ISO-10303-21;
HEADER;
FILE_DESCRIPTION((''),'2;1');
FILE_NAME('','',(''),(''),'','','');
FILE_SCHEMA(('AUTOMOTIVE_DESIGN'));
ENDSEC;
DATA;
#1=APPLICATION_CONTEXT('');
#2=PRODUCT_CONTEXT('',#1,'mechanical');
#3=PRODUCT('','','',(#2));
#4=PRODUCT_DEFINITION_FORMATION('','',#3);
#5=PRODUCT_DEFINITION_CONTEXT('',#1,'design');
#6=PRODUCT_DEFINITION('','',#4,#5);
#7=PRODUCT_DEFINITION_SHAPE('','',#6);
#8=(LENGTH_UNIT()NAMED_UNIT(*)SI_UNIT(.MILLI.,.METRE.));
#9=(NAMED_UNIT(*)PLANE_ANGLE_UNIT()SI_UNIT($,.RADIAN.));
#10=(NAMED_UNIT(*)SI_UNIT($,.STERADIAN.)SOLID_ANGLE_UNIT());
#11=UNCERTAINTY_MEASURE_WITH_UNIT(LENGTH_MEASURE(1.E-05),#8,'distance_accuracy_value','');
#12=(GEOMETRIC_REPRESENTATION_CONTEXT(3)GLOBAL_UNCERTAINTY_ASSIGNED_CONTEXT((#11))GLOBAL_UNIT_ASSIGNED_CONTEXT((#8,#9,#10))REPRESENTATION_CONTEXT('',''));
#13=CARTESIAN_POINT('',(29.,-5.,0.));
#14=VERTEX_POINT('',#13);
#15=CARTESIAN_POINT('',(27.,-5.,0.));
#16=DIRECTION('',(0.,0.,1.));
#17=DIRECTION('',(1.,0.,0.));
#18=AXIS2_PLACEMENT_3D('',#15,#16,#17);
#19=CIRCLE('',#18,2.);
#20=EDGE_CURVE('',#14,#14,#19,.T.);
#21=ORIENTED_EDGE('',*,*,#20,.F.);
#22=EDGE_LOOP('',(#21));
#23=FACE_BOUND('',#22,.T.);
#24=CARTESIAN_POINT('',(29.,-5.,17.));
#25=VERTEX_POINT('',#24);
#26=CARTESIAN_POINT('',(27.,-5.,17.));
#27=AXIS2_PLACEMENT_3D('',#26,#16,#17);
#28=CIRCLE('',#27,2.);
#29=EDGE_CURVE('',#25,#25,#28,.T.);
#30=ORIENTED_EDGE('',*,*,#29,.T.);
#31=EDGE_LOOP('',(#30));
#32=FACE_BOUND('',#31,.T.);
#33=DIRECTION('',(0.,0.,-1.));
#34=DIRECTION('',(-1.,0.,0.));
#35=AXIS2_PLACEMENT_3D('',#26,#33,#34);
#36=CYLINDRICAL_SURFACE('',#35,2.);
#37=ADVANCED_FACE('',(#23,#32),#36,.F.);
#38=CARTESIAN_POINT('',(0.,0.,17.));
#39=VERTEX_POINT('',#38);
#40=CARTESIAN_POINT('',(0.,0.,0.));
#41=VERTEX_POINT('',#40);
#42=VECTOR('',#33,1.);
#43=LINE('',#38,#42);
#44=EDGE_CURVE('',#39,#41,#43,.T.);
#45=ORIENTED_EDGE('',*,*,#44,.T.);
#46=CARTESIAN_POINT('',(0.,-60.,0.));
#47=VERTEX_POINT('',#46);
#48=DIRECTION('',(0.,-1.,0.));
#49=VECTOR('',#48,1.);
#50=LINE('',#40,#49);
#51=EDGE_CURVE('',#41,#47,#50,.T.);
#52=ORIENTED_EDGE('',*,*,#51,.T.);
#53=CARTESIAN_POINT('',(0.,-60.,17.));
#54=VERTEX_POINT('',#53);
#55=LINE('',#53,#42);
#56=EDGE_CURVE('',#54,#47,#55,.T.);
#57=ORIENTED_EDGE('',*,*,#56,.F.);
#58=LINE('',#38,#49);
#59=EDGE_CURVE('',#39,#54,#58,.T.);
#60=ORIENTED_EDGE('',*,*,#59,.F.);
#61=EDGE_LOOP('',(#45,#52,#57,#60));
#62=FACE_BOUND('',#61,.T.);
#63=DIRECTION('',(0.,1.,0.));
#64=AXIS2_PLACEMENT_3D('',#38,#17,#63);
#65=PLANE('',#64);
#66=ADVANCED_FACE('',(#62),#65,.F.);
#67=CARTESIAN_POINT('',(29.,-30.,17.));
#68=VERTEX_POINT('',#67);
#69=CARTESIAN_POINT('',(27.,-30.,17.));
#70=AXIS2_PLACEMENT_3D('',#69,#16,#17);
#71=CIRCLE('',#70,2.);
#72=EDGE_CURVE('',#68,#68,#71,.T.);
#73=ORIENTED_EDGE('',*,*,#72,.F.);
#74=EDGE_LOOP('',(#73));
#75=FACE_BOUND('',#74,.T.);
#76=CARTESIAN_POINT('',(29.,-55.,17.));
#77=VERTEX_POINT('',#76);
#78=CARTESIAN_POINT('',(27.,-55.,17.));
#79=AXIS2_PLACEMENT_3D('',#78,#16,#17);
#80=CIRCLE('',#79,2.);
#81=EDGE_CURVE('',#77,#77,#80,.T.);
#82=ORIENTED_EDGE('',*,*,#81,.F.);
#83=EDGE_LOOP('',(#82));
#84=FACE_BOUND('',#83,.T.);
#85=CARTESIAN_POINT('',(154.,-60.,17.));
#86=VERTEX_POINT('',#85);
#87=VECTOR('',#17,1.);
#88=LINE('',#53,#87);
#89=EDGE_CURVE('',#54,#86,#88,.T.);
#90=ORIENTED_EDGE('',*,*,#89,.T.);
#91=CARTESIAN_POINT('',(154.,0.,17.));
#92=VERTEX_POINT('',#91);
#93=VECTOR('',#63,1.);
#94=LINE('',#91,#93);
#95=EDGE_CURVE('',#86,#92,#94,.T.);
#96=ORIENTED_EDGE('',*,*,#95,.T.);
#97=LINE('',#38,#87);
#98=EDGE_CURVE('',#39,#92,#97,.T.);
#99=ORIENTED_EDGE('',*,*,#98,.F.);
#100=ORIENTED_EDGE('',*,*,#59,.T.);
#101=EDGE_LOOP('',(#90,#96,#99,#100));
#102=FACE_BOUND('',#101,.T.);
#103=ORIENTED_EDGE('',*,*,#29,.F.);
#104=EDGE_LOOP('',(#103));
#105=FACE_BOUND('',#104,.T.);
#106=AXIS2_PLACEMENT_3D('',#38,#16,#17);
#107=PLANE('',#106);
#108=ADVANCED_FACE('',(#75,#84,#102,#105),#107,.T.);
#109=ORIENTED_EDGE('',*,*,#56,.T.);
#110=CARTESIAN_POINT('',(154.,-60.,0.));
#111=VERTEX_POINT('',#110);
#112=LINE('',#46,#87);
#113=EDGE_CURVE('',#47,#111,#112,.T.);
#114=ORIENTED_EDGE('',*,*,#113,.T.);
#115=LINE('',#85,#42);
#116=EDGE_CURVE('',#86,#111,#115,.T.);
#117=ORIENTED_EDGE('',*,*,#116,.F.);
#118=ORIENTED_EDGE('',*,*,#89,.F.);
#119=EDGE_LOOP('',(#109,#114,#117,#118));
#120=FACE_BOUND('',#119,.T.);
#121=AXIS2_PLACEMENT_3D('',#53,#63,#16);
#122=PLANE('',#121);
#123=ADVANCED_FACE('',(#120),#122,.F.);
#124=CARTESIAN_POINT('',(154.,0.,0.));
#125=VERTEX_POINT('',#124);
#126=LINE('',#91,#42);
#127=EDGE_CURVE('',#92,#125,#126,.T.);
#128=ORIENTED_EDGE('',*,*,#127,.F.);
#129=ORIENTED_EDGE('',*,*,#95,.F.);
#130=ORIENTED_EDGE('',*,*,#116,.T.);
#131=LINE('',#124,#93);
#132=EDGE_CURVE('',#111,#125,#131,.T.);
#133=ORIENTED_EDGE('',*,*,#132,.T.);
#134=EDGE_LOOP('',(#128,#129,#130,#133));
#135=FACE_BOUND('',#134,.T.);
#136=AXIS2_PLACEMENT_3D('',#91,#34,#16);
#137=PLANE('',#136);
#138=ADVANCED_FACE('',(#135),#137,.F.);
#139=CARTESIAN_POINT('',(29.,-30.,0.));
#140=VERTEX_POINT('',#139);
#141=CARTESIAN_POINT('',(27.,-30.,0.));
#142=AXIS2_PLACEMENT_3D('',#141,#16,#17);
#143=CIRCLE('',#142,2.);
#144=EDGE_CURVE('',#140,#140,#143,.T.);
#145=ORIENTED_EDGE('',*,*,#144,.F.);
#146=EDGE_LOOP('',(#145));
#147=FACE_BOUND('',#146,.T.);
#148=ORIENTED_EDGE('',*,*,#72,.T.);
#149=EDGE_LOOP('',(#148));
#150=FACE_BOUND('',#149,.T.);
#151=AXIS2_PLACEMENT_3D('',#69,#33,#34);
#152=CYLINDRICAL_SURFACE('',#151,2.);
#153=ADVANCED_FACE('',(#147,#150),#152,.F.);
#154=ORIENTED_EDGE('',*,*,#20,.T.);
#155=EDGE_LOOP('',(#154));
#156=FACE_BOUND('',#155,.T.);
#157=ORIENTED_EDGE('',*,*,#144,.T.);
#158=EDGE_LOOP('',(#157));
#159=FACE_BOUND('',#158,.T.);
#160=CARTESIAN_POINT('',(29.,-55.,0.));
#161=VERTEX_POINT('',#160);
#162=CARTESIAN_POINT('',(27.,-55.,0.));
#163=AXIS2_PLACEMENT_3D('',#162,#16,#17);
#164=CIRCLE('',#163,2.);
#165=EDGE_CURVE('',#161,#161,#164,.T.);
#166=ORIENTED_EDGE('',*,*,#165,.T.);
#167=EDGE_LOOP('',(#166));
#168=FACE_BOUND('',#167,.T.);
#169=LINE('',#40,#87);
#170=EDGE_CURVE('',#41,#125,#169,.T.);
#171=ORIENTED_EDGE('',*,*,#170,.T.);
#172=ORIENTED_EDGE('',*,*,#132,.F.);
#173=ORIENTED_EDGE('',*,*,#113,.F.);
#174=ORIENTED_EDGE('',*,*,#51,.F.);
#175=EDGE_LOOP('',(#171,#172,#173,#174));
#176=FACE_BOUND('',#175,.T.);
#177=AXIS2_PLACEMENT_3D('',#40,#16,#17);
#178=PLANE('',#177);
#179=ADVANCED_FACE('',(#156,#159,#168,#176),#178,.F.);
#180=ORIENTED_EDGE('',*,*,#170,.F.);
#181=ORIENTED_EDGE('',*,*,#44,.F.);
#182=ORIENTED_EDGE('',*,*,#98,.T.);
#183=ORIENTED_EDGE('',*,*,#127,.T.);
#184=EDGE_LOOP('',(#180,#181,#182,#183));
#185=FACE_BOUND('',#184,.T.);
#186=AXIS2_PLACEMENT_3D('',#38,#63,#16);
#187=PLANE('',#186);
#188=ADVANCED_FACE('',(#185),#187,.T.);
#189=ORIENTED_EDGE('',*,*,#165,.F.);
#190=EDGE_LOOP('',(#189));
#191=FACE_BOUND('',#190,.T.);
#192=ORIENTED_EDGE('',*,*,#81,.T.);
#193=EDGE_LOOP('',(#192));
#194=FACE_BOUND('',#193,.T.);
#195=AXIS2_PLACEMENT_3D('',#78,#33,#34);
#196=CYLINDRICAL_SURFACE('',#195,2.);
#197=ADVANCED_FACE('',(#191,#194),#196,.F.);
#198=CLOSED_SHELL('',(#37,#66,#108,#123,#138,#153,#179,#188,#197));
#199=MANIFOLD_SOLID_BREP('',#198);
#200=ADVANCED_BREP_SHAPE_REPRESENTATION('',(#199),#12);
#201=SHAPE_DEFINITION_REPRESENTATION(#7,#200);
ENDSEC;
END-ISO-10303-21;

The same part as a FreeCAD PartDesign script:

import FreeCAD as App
import Part
import Sketcher
from FreeCAD import Vector


def add_polygon(sketch, points):
    """Adds a closed chain of lines whose ends are joined by coincident constraints."""
    first, n = sketch.GeometryCount, len(points)
    for a, b in zip(points, points[1:] + points[:1]):
        sketch.addGeometry(Part.LineSegment(App.Vector(*a, 0), App.Vector(*b, 0)), False)
    for i in range(n):
        sketch.addConstraint(Sketcher.Constraint("Coincident", first + i, 2, first + (i + 1) % n, 1))

doc = App.newDocument("Part")
body = doc.addObject("PartDesign::Body", "Body")

# Sketch on XY plane
sketch1 = body.newObject("Sketcher::SketchObject", "Sketch")
sketch1.AttachmentSupport = (doc.getObject("XY_Plane"), [""])
sketch1.MapMode = "FlatFace"
add_polygon(sketch1, [(0, 0), (0, -60), (154, -60), (154, 0)])  # lines 0-3
sketch1.addGeometry(Part.Circle(Vector(27, -55, 0), Vector(0, 0, 1), 2), False)  # 4
sketch1.addGeometry(Part.Circle(Vector(27, -30, 0), Vector(0, 0, 1), 2), False)  # 5
sketch1.addGeometry(Part.Circle(Vector(27, -5, 0), Vector(0, 0, 1), 2), False)  # 6
sketch1.addConstraint([
    Sketcher.Constraint("Vertical", 0),
    Sketcher.Constraint("Horizontal", 1),
    Sketcher.Constraint("Vertical", 2),
    Sketcher.Constraint("Horizontal", 3),
    Sketcher.Constraint("Coincident", 3, 2, -1, 1),
    Sketcher.Constraint("Equal", 4, 5),
    Sketcher.Constraint("Equal", 5, 6),
    Sketcher.Constraint("Vertical", 4, 3, 5, 3),
    Sketcher.Constraint("Vertical", 5, 3, 6, 3),
    Sketcher.Constraint("Diameter", 4, 4.0),
    Sketcher.Constraint("DistanceX", 1, 1, 1, 2, 154.0),
    Sketcher.Constraint("DistanceY", 0, 2, 0, 1, 60.0),
    Sketcher.Constraint("DistanceX", -1, 1, 4, 3, 27.0),
    Sketcher.Constraint("DistanceY", 4, 3, -1, 1, 55.0),
    Sketcher.Constraint("DistanceY", 5, 3, -1, 1, 30.0),
    Sketcher.Constraint("DistanceY", 6, 3, -1, 1, 5.0),
])
pad1 = body.newObject("PartDesign::Pad", "Pad")
pad1.Profile = sketch1
pad1.Length = 17

doc.recompute()
